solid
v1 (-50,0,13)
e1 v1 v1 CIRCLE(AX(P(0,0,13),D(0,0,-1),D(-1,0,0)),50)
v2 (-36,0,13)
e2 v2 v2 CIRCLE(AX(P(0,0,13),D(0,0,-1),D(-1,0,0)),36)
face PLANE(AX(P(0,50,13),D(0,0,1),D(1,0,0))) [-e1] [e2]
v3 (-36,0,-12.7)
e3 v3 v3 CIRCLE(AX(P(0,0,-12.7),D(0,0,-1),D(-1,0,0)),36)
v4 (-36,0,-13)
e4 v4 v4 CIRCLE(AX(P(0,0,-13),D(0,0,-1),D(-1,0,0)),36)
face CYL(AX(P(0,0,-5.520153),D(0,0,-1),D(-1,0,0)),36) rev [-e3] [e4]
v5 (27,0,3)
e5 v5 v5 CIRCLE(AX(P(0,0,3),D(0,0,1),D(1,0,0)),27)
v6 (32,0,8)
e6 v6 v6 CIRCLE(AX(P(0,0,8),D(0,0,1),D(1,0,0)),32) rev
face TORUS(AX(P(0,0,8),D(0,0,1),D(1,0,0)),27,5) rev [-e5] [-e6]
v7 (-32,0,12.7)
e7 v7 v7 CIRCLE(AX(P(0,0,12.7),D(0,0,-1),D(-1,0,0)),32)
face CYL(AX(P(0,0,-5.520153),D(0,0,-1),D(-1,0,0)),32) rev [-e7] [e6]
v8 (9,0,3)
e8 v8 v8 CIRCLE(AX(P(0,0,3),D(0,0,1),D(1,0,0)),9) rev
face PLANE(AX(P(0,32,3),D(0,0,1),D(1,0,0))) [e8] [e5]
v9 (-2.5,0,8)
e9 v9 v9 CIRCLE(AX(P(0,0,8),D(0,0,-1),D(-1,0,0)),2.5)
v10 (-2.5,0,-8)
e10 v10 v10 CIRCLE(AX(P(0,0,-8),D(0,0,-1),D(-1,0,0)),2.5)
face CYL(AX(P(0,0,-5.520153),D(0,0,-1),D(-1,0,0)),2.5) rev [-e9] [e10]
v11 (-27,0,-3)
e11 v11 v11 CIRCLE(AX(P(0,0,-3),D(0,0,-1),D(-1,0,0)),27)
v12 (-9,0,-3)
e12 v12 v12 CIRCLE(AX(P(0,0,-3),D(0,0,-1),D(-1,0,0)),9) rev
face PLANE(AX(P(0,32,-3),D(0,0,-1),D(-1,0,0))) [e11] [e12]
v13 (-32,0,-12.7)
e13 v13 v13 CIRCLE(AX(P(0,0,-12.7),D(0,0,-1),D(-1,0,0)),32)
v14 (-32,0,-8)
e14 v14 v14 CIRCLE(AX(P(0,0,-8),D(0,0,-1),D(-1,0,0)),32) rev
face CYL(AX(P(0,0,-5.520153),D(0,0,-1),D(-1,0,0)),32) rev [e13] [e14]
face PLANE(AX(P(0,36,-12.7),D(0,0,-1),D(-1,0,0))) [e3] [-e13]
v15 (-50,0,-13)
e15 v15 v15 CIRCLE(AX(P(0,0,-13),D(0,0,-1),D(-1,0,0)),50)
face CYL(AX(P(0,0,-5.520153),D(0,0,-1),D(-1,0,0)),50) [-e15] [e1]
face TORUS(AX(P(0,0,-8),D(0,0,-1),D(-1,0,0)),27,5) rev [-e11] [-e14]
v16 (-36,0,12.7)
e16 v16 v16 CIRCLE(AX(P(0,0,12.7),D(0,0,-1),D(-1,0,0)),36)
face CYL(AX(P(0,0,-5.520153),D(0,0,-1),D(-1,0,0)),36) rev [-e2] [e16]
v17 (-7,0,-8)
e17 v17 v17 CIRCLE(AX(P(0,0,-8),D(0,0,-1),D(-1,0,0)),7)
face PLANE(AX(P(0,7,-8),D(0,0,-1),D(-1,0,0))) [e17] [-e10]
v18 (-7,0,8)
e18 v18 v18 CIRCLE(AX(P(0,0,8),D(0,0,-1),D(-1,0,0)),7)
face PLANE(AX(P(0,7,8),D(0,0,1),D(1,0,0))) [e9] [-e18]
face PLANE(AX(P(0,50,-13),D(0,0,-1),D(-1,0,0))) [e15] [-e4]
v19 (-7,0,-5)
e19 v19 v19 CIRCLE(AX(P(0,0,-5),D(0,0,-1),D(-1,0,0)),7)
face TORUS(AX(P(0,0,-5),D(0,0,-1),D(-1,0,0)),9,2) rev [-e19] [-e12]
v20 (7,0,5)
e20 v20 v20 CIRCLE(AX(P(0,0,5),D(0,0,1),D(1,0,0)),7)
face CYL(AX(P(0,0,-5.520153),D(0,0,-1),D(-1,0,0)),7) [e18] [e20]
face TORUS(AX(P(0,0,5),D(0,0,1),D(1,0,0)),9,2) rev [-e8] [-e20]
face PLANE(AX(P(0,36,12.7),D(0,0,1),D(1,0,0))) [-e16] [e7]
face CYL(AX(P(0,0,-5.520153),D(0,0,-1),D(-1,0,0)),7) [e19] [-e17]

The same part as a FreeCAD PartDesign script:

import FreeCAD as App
import Part
import Sketcher
Q = App.Units.Quantity


def edges_at(feature, points):
    """Names of the edges that pass closest to the given points."""
    edges = feature.Shape.Edges
    near = lambda p: min(range(len(edges)), key=lambda i: edges[i].distToShape(Part.Vertex(*p))[0])
    return sorted({f"Edge{near(p) + 1}" for p in points})


def add_polygon(sketch, points):
    """Adds a closed chain of lines whose ends are joined by coincident constraints."""
    first, n = sketch.GeometryCount, len(points)
    for a, b in zip(points, points[1:] + points[:1]):
        sketch.addGeometry(Part.LineSegment(App.Vector(*a, 0), App.Vector(*b, 0)), False)
    for i in range(n):
        sketch.addConstraint(Sketcher.Constraint("Coincident", first + i, 2, first + (i + 1) % n, 1))

doc = App.newDocument("Part")
body = doc.addObject("PartDesign::Body", "Body")

sketch1 = doc.addObject("Sketcher::SketchObject", "Sketch")
body.addObject(sketch1)
sketch1.AttachmentSupport = (doc.YZ_Plane, [""])
sketch1.MapMode = "FlatFace"
add_polygon(sketch1, [(2.5, 8), (2.5, -8), (7, -8), (7, -3), (32, -3), (32, -12.7), (36, -12.7), (36, -13), (50, -13), (50, 13), (36, 13), (36, 12.7), (32, 12.7), (32, 3), (7, 3), (7, 8)])
sketch1.addConstraint(Sketcher.Constraint("Vertical", 0))
sketch1.addConstraint(Sketcher.Constraint("Horizontal", 1))
sketch1.addConstraint(Sketcher.Constraint("Vertical", 2))
sketch1.addConstraint(Sketcher.Constraint("Horizontal", 3))
sketch1.addConstraint(Sketcher.Constraint("Vertical", 4))
sketch1.addConstraint(Sketcher.Constraint("Horizontal", 5))
sketch1.addConstraint(Sketcher.Constraint("Vertical", 6))
sketch1.addConstraint(Sketcher.Constraint("Horizontal", 7))
sketch1.addConstraint(Sketcher.Constraint("Vertical", 8))
sketch1.addConstraint(Sketcher.Constraint("Horizontal", 9))
sketch1.addConstraint(Sketcher.Constraint("Vertical", 10))
sketch1.addConstraint(Sketcher.Constraint("Horizontal", 11))
sketch1.addConstraint(Sketcher.Constraint("Vertical", 12))
sketch1.addConstraint(Sketcher.Constraint("Horizontal", 13))
sketch1.addConstraint(Sketcher.Constraint("Vertical", 14))
sketch1.addConstraint(Sketcher.Constraint("Horizontal", 15))
sketch1.addConstraint(Sketcher.Constraint("Symmetric", 6, 2, 9, 2, -1))
sketch1.addConstraint(Sketcher.Constraint("Symmetric", 4, 2, 11, 2, -1))
sketch1.addConstraint(Sketcher.Constraint("Symmetric", 2, 2, 13, 2, -1))
sketch1.addConstraint(Sketcher.Constraint("Equal", 2, 14))
sketch1.addConstraint(Sketcher.Constraint("DistanceX", 3, 1, 3, 2, Q("25 mm")))
sketch1.addConstraint(Sketcher.Constraint("DistanceX", 5, 1, 5, 2, Q("4 mm")))
sketch1.addConstraint(Sketcher.Constraint("DistanceX", 7, 1, 7, 2, Q("14 mm")))
sketch1.addConstraint(Sketcher.Constraint("DistanceY", 0, 2, 0, 1, Q("16 mm")))
sketch1.addConstraint(Sketcher.Constraint("DistanceY", 2, 1, 2, 2, Q("5 mm")))
sketch1.addConstraint(Sketcher.Constraint("DistanceY", 8, 1, 8, 2, Q("26 mm")))
sketch1.addConstraint(Sketcher.Constraint("DistanceX", 1, 1, 1, 2, Q("4.5 mm")))
sketch1.addConstraint(Sketcher.Constraint("DistanceY", 4, 2, 4, 1, Q("9.7 mm")))
sketch1.addConstraint(Sketcher.Constraint("DistanceX", -1, 1, 1, 2, Q("7 mm")))
revolution = doc.addObject("PartDesign::Revolution", "Revolution")
body.addObject(revolution)
revolution.Profile = sketch1
revolution.ReferenceAxis = (sketch1, ["V_Axis"])
revolution.Angle = 360
doc.recompute()

fillet = doc.addObject("PartDesign::Fillet", "Fillet")
body.addObject(fillet)
fillet.Base = (revolution, edges_at(revolution, [(0, -32, -3)]))
fillet.Radius = 5
doc.recompute()

fillet2 = doc.addObject("PartDesign::Fillet", "Fillet001")
body.addObject(fillet2)
fillet2.Base = (fillet, edges_at(fillet, [(0, -7, -3)]))
fillet2.Radius = 2
doc.recompute()

fillet3 = doc.addObject("PartDesign::Fillet", "Fillet002")
body.addObject(fillet3)
fillet3.Base = (fillet2, edges_at(fillet2, [(0, -32, 3)]))
fillet3.Radius = 5
doc.recompute()

fillet4 = doc.addObject("PartDesign::Fillet", "Fillet003")
body.addObject(fillet4)
fillet4.Base = (fillet3, edges_at(fillet3, [(0, -7, 3)]))
fillet4.Radius = 2

doc.recompute()
